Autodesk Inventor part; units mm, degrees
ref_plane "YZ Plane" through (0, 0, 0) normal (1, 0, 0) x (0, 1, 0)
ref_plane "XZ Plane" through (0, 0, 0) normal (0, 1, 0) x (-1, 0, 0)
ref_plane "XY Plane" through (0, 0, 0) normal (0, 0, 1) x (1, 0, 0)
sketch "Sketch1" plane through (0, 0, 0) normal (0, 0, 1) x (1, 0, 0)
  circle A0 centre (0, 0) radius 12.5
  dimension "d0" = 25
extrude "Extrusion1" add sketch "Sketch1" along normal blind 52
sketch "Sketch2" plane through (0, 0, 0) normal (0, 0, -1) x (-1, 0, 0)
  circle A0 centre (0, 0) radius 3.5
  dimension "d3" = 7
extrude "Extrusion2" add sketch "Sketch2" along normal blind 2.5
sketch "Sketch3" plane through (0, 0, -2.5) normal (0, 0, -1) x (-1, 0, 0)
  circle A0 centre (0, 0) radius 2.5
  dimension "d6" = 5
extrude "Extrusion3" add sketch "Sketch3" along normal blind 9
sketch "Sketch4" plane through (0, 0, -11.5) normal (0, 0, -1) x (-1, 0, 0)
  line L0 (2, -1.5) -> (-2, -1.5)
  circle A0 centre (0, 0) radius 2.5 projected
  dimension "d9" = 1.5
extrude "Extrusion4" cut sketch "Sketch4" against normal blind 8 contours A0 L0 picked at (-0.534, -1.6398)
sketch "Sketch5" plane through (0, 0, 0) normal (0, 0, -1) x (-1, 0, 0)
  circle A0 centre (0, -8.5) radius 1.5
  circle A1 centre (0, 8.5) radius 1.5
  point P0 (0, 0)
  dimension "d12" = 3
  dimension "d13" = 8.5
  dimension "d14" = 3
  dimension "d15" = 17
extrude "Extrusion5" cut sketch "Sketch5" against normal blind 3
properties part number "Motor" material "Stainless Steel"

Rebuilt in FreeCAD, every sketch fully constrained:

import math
import FreeCAD as App
import Part
import Sketcher

V = App.Vector
Q = App.Units.Quantity

doc = App.newDocument("Part")
params = doc.addObject("Spreadsheet::Sheet", "Params")
for row, (alias, value) in enumerate([
    ("sketch1_diameter", "25 mm"),
    ("pad1_length", "52 mm"),
    ("sketch2_diameter", "7 mm"),
    ("pad2_length", "2.5 mm"),
    ("sketch3_diameter", "5 mm"),
    ("pad3_length", "9 mm"),
    ("sketch4_radius", "2.5 mm"),
    ("pocket1_length", "8 mm"),
    ("sketch5_diameter", "3 mm"),
    ("pocket2_length", "3 mm"),
], start=1):
    params.set(f"A{row}", alias)
    params.set(f"B{row}", "=" + value)
    params.setAlias(f"B{row}", alias)

body = doc.addObject("PartDesign::Body", "Body")

sketch1 = doc.addObject("Sketcher::SketchObject", "Sketch")
body.addObject(sketch1)
sketch1.AttachmentSupport = (doc.XY_Plane, [""])
sketch1.MapMode = "FlatFace"
sketch1.addGeometry(Part.Circle(V(0, 0, 0), V(0, 0, 1), 12), False)
sketch1.addConstraint([
    Sketcher.Constraint("Coincident", 0, 3, -1, 1),
    Sketcher.Constraint("Diameter", 0, Q("25 mm")),
])
sketch1.setExpression("Constraints[1]", "Params.sketch1_diameter")
pad1 = doc.addObject("PartDesign::Pad", "Pad")
body.addObject(pad1)
pad1.Profile = sketch1
pad1.setExpression("Length", "Params.pad1_length")

sketch2 = doc.addObject("Sketcher::SketchObject", "Sketch001")
body.addObject(sketch2)
sketch2.AttachmentSupport = (doc.XY_Plane, [""])
sketch2.MapMode = "FlatFace"
sketch2.addGeometry(Part.Circle(V(0, 0, 0), V(0, 0, 1), 3.5), False)
sketch2.addConstraint([
    Sketcher.Constraint("Coincident", 0, 3, -1, 1),
    Sketcher.Constraint("Diameter", 0, Q("7 mm")),
])
sketch2.setExpression("Constraints[1]", "Params.sketch2_diameter")
pad2 = doc.addObject("PartDesign::Pad", "Pad001")
body.addObject(pad2)
pad2.Profile = sketch2
pad2.setExpression("Length", "Params.pad2_length")
pad2.Reversed = True

sketch3 = doc.addObject("Sketcher::SketchObject", "Sketch002")
body.addObject(sketch3)
sketch3.AttachmentSupport = (doc.XY_Plane, [""])
sketch3.MapMode = "FlatFace"
sketch3.AttachmentOffset = App.Placement(V(0, 0, -2.5), App.Rotation())
sketch3.addGeometry(Part.Circle(V(0, 0, 0), V(0, 0, 1), 2.5), False)
sketch3.addConstraint([
    Sketcher.Constraint("Coincident", 0, 3, -1, 1),
    Sketcher.Constraint("Diameter", 0, Q("5 mm")),
])
sketch3.setExpression("Constraints[1]", "Params.sketch3_diameter")
pad3 = doc.addObject("PartDesign::Pad", "Pad002")
body.addObject(pad3)
pad3.Profile = sketch3
pad3.setExpression("Length", "Params.pad3_length")
pad3.Reversed = True

sketch4 = doc.addObject("Sketcher::SketchObject", "Sketch003")
body.addObject(sketch4)
sketch4.AttachmentSupport = (doc.XY_Plane, [""])
sketch4.MapMode = "FlatFace"
sketch4.AttachmentOffset = App.Placement(V(0, 0, -11.5), App.Rotation())
sketch4.addGeometry([
    Part.ArcOfCircle(Part.Circle(V(0, 0, 0), V(0, 0, 1), 2.5), math.radians(-143), math.radians(-37)),
    Part.LineSegment(V(-2, -1.5, 0), V(2, -1.5, 0)),
], False)
sketch4.addConstraint([
    Sketcher.Constraint("Coincident", 0, 1, 1, 1),
    Sketcher.Constraint("Coincident", 1, 2, 0, 2),
    Sketcher.Constraint("Horizontal", 1),
    Sketcher.Constraint("Coincident", 0, 3, -1, 1),
    Sketcher.Constraint("DistanceY", 0, 1, -1, 1, Q("1.5 mm")),
    Sketcher.Constraint("Radius", 0, Q("2.5 mm")),
])
sketch4.setExpression("Constraints[5]", "Params.sketch4_radius")
pocket1 = doc.addObject("PartDesign::Pocket", "Pocket")
body.addObject(pocket1)
pocket1.Profile = sketch4
pocket1.setExpression("Length", "Params.pocket1_length")
pocket1.Reversed = True

sketch5 = doc.addObject("Sketcher::SketchObject", "Sketch004")
body.addObject(sketch5)
sketch5.AttachmentSupport = (doc.XY_Plane, [""])
sketch5.MapMode = "FlatFace"
sketch5.addGeometry([
    Part.Circle(V(0, -8.5, 0), V(0, 0, 1), 1.5),
    Part.Circle(V(0, 8.5, 0), V(0, 0, 1), 1.5),
], False)
sketch5.addConstraint([
    Sketcher.Constraint("Equal", 0, 1),
    Sketcher.Constraint("Symmetric", 0, 3, 1, 3, -1, 1),
    Sketcher.Constraint("PointOnObject", 0, 3, -2),
    Sketcher.Constraint("Diameter", 0, Q("3 mm")),
    Sketcher.Constraint("DistanceY", 0, 3, 1, 3, Q("17 mm")),
])
sketch5.setExpression("Constraints[3]", "Params.sketch5_diameter")
pocket2 = doc.addObject("PartDesign::Pocket", "Pocket001")
body.addObject(pocket2)
pocket2.Profile = sketch5
pocket2.setExpression("Length", "Params.pocket2_length")
pocket2.Reversed = True

doc.recompute()
